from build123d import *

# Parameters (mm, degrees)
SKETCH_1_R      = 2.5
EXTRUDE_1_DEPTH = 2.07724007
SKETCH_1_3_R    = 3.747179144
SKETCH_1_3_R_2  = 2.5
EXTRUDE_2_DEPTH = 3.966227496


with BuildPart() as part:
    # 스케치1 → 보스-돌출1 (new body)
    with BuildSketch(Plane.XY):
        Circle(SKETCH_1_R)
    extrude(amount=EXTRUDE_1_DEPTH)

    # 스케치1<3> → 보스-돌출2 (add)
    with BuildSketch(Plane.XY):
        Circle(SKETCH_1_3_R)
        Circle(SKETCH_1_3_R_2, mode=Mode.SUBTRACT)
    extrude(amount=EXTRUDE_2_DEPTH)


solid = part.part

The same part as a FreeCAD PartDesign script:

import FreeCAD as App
import Part
import Sketcher
from FreeCAD import Vector

doc = App.newDocument("Part")
body = doc.addObject("PartDesign::Body", "Body")

sketch1 = body.newObject("Sketcher::SketchObject", "Sketch")
sketch1.AttachmentSupport = (doc.getObject("XY_Plane"), [""])
sketch1.MapMode = "FlatFace"
sketch1.addGeometry(Part.Circle(Vector(0, 0, 0), Vector(0, 0, 1), 2.5), False)
sketch1.addConstraint(Sketcher.Constraint("Coincident", 0, 3, -1, 1))
sketch1.addConstraint(Sketcher.Constraint("Diameter", 0, 5.0))
pad1 = body.newObject("PartDesign::Pad", "Pad")
pad1.Profile = sketch1
pad1.Length = 2.07724

sketch2 = body.newObject("Sketcher::SketchObject", "Sketch001")
sketch2.AttachmentSupport = (doc.getObject("XY_Plane"), [""])
sketch2.MapMode = "FlatFace"
sketch2.addGeometry(Part.Circle(Vector(0, 0, 0), Vector(0, 0, 1), 3.7), False)
sketch2.addGeometry(Part.Circle(Vector(0, 0, 0), Vector(0, 0, 1), 2.5), False)
sketch2.addConstraint(Sketcher.Constraint("Coincident", 0, 3, -1, 1))
sketch2.addConstraint(Sketcher.Constraint("Coincident", 1, 3, -1, 1))
sketch2.addConstraint(Sketcher.Constraint("Diameter", 1, 5.0))
sketch2.addConstraint(Sketcher.Constraint("Diameter", 0, 7.494358))
pad2 = body.newObject("PartDesign::Pad", "Pad001")
pad2.Profile = sketch2
pad2.Length = 3.966227

doc.recompute()
